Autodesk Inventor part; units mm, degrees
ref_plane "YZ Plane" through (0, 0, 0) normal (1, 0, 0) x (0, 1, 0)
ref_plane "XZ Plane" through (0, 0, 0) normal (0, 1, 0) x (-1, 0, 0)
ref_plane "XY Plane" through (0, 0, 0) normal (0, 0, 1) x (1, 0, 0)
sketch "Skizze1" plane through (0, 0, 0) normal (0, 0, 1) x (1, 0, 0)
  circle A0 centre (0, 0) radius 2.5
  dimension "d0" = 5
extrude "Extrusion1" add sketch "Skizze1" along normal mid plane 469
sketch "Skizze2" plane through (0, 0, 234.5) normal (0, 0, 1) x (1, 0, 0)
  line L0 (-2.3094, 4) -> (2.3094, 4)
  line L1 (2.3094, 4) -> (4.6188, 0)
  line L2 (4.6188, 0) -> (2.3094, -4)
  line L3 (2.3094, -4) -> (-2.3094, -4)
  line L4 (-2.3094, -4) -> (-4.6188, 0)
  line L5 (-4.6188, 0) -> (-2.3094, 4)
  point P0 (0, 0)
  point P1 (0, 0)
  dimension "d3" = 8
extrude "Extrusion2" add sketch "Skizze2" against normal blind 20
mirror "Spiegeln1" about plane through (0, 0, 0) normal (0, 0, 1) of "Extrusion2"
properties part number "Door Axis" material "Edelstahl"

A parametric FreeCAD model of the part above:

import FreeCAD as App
import Part
import Sketcher
Q = App.Units.Quantity


def add_polygon(sketch, points):
    """Adds a closed chain of lines whose ends are joined by coincident constraints."""
    first, n = sketch.GeometryCount, len(points)
    for a, b in zip(points, points[1:] + points[:1]):
        sketch.addGeometry(Part.LineSegment(App.Vector(*a, 0), App.Vector(*b, 0)), False)
    for i in range(n):
        sketch.addConstraint(Sketcher.Constraint("Coincident", first + i, 2, first + (i + 1) % n, 1))

doc = App.newDocument("Part")
body = doc.addObject("PartDesign::Body", "Body")

sketch1 = body.newObject("Sketcher::SketchObject", "Sketch")
sketch1.AttachmentSupport = (doc.getObject("XY_Plane"), [""])
sketch1.MapMode = "FlatFace"
sketch1.addGeometry(Part.Circle(App.Vector(0, 0, 0), App.Vector(0, 0, 1), 2.5), False)
sketch1.addConstraint([
    Sketcher.Constraint("Coincident", 0, 3, -1, 1),
    Sketcher.Constraint("Diameter", 0, 5.0),
])
pad1 = body.newObject("PartDesign::Pad", "Pad")
pad1.Profile = sketch1
pad1.Length = 469
pad1.Midplane = True

sketch2 = body.newObject("Sketcher::SketchObject", "Sketch001")
sketch2.AttachmentSupport = (doc.getObject("XY_Plane"), [""])
sketch2.MapMode = "FlatFace"
sketch2.AttachmentOffset = App.Placement(App.Vector(0, 0, 234.5), App.Rotation())
add_polygon(sketch2, [(2.3, 4), (-2.3, 4), (-4.6, 0), (-2.3, -4), (2.3, -4), (4.6, 0)])
sketch2.addConstraint([
    Sketcher.Constraint("Horizontal", 0),
    Sketcher.Constraint("Horizontal", 3),
    Sketcher.Constraint("Symmetric", 0, 2, 3, 2, -1, 1),
    Sketcher.Constraint("Symmetric", 1, 2, 4, 2, -1, 1),
    Sketcher.Constraint("PointOnObject", 1, 2, -1),
    Sketcher.Constraint("Parallel", 2, 5),
    Sketcher.Constraint("Vertical", 0, 2, 2, 2),
    Sketcher.Constraint("DistanceY", 2, 2, 0, 2, 8.0),
    Sketcher.Constraint("Angle", 1, Q("-120 deg")),
    Sketcher.Constraint("DistanceX", 0, 2, 0, 1, 4.6188),
])
pad2 = body.newObject("PartDesign::Pad", "Pad001")
pad2.Profile = sketch2
pad2.Length = 20
pad2.Reversed = True
doc.recompute()

mirrored = body.newObject("PartDesign::Mirrored", "Mirrored")
mirrored.Originals = [pad2]
mirrored.MirrorPlane = (doc.getObject("XY_Plane"), [""])
body.Tip = mirrored

doc.recompute()
